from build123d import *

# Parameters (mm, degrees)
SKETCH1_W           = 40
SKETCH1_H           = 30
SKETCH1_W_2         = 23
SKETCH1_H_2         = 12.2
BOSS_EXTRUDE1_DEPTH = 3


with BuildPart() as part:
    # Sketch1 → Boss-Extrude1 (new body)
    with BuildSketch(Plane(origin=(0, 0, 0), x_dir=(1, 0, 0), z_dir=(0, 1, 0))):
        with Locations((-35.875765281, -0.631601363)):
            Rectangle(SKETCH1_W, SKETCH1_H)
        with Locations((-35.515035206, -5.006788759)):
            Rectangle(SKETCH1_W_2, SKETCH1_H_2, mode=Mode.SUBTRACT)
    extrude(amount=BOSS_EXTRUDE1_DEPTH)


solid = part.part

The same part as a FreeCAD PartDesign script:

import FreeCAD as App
import Part
import Sketcher
Q = App.Units.Quantity


def add_polygon(sketch, points):
    """Adds a closed chain of lines whose ends are joined by coincident constraints."""
    first, n = sketch.GeometryCount, len(points)
    for a, b in zip(points, points[1:] + points[:1]):
        sketch.addGeometry(Part.LineSegment(App.Vector(*a, 0), App.Vector(*b, 0)), False)
    for i in range(n):
        sketch.addConstraint(Sketcher.Constraint("Coincident", first + i, 2, first + (i + 1) % n, 1))

doc = App.newDocument("Part")
body = doc.addObject("PartDesign::Body", "Body")

sketch1 = body.newObject("Sketcher::SketchObject", "Sketch")
sketch1.AttachmentSupport = (doc.getObject("XZ_Plane"), [""])
sketch1.MapMode = "FlatFace"
add_polygon(sketch1, [(-55.875765, -14.368399), (-55.875765, 15.631601), (-15.875765, 15.631601), (-15.875765, -14.368399)])
add_polygon(sketch1, [(-24.015035, 11.106789), (-47.015035, 11.106789), (-47.015035, -1.093211), (-24.015035, -1.093211)])
sketch1.addConstraint([
    Sketcher.Constraint("Vertical", 0),
    Sketcher.Constraint("Horizontal", 1),
    Sketcher.Constraint("Vertical", 2),
    Sketcher.Constraint("Horizontal", 3),
    Sketcher.Constraint("Horizontal", 4),
    Sketcher.Constraint("Vertical", 5),
    Sketcher.Constraint("Horizontal", 6),
    Sketcher.Constraint("Vertical", 7),
    Sketcher.Constraint("DistanceX", 1, 1, 1, 2, Q("40 mm")),
    Sketcher.Constraint("DistanceX", 4, 2, 4, 1, Q("23 mm")),
    Sketcher.Constraint("DistanceY", 0, 1, 0, 2, Q("30 mm")),
    Sketcher.Constraint("DistanceY", 5, 2, 5, 1, Q("12.2 mm")),
    Sketcher.Constraint("DistanceY", -1, 1, 0, 2, Q("15.631601 mm")),
    Sketcher.Constraint("DistanceY", -1, 1, 4, 2, Q("11.106789 mm")),
    Sketcher.Constraint("DistanceX", 0, 2, 4, 2, Q("8.86073 mm")),
    Sketcher.Constraint("DistanceX", 0, 2, -1, 1, Q("55.875765 mm")),
])
pad1 = body.newObject("PartDesign::Pad", "Pad")
pad1.Profile = sketch1
pad1.Length = 3
pad1.Reversed = True

doc.recompute()
